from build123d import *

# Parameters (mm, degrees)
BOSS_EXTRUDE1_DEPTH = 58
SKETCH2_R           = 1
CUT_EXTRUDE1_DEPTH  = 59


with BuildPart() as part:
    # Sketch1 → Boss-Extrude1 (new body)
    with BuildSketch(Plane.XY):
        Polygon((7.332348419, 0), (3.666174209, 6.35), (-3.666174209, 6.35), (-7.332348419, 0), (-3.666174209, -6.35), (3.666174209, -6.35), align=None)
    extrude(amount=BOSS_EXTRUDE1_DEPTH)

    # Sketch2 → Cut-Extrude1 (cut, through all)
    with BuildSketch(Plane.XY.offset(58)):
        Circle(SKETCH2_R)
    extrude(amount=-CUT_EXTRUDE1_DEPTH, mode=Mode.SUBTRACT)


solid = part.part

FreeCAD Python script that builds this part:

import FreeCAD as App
import Part
import Sketcher
from FreeCAD import Vector
Q = App.Units.Quantity


def add_polygon(sketch, points):
    """Adds a closed chain of lines whose ends are joined by coincident constraints."""
    first, n = sketch.GeometryCount, len(points)
    for a, b in zip(points, points[1:] + points[:1]):
        sketch.addGeometry(Part.LineSegment(App.Vector(*a, 0), App.Vector(*b, 0)), False)
    for i in range(n):
        sketch.addConstraint(Sketcher.Constraint("Coincident", first + i, 2, first + (i + 1) % n, 1))

doc = App.newDocument("Part")
params = doc.addObject("Spreadsheet::Sheet", "Params")
for row, (alias, value) in enumerate([
    ("pad1_length", "58 mm"),
    ("sketch2_diameter", "2 mm"),
], start=1):
    params.set(f"A{row}", alias)
    params.set(f"B{row}", "=" + value)
    params.setAlias(f"B{row}", alias)

body = doc.addObject("PartDesign::Body", "Body")

# Sketch on XY plane
sketch1 = doc.addObject("Sketcher::SketchObject", "Sketch")
body.addObject(sketch1)
sketch1.AttachmentSupport = (doc.XY_Plane, [""])
sketch1.MapMode = "FlatFace"
add_polygon(sketch1, [(7, 0), (4, 6), (-4, 6), (-7, 0), (-4, -6), (4, -6)])  # lines 0-5
sketch1.addConstraint([
    Sketcher.Constraint("Horizontal", 1),
    Sketcher.Constraint("Horizontal", 4),
    Sketcher.Constraint("Symmetric", 0, 2, 3, 2, -1, 1),
    Sketcher.Constraint("Symmetric", 2, 2, 5, 2, -1, 1),
    Sketcher.Constraint("PointOnObject", 2, 2, -1),
    Sketcher.Constraint("Parallel", 2, 5),
    Sketcher.Constraint("Vertical", 1, 2, 3, 2),
    Sketcher.Constraint("Angle", 0, Q("120 deg")),
    Sketcher.Constraint("DistanceY", 3, 2, 1, 2, 12.7),
    Sketcher.Constraint("DistanceX", 1, 2, 1, 1, 7.332348),
])
pad1 = doc.addObject("PartDesign::Pad", "Pad")
body.addObject(pad1)
pad1.Profile = sketch1
pad1.setExpression("Length", "Params.pad1_length")

# Sketch on XY plane
sketch2 = doc.addObject("Sketcher::SketchObject", "Sketch001")
body.addObject(sketch2)
sketch2.AttachmentSupport = (doc.XY_Plane, [""])
sketch2.MapMode = "FlatFace"
sketch2.AttachmentOffset = App.Placement(Vector(0, 0, 58), App.Rotation())
sketch2.addGeometry(Part.Circle(Vector(0, 0, 0), Vector(0, 0, 1), 1), False)
sketch2.addConstraint([
    Sketcher.Constraint("Coincident", 0, 3, -1, 1),
    Sketcher.Constraint("Diameter", 0, 2.0),
])
sketch2.setExpression("Constraints[1]", "Params.sketch2_diameter")
pocket1 = doc.addObject("PartDesign::Pocket", "Pocket")
body.addObject(pocket1)
pocket1.Profile = sketch2
pocket1.Type = "ThroughAll"

doc.recompute()
